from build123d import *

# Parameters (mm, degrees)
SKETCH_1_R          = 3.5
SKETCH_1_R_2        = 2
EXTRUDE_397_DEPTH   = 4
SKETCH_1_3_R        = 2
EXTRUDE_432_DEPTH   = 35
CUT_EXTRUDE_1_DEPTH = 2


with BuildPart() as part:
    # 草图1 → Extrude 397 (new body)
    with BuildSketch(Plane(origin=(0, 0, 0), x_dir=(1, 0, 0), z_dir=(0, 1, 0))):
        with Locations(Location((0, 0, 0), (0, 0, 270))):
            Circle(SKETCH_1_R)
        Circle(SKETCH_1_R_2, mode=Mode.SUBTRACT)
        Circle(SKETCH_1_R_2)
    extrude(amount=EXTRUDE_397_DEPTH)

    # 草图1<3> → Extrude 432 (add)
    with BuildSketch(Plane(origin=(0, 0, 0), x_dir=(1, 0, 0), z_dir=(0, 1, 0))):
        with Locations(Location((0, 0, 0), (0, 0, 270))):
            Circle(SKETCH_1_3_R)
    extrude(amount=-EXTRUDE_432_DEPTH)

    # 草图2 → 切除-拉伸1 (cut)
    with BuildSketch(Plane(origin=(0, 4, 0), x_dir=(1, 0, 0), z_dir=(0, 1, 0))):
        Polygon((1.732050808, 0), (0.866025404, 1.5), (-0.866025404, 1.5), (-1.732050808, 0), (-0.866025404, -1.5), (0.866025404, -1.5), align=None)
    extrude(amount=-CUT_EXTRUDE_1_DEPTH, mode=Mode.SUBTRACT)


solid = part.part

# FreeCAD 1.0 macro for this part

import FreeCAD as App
import Part
import Sketcher
Q = App.Units.Quantity

doc = App.newDocument("Part")
body = doc.addObject("PartDesign::Body", "Body")

# Sketch on XZ plane
sketch1 = doc.addObject("Sketcher::SketchObject", "Sketch")
body.addObject(sketch1)
sketch1.AttachmentSupport = (doc.XZ_Plane, [""])
sketch1.MapMode = "FlatFace"
sketch1.addGeometry(Part.Circle(App.Vector(0, 0, 0), App.Vector(0, 0, 1), 3.5), False)
sketch1.addConstraint([
    Sketcher.Constraint("Coincident", 0, 3, -1, 1),
    Sketcher.Constraint("Diameter", 0, 7.0),
])
pad1 = doc.addObject("PartDesign::Pad", "Pad")
body.addObject(pad1)
pad1.Profile = sketch1
pad1.Length = 4
pad1.Reversed = True

# Sketch on XZ plane
sketch2 = doc.addObject("Sketcher::SketchObject", "Sketch001")
body.addObject(sketch2)
sketch2.AttachmentSupport = (doc.XZ_Plane, [""])
sketch2.MapMode = "FlatFace"
sketch2.addGeometry(Part.Circle(App.Vector(0, 0, 0), App.Vector(0, 0, 1), 2), False)
sketch2.addConstraint([
    Sketcher.Constraint("Coincident", 0, 3, -1, 1),
    Sketcher.Constraint("Diameter", 0, 4.0),
])
pad2 = doc.addObject("PartDesign::Pad", "Pad001")
body.addObject(pad2)
pad2.Profile = sketch2
pad2.Length = 35

# Sketch on XZ plane
sketch3 = doc.addObject("Sketcher::SketchObject", "Sketch002")
body.addObject(sketch3)
sketch3.AttachmentSupport = (doc.XZ_Plane, [""])
sketch3.MapMode = "FlatFace"
sketch3.AttachmentOffset = App.Placement(App.Vector(0, 0, -4), App.Rotation())
sketch3.addGeometry([
    Part.LineSegment(App.Vector(1.732051, 0, 0), App.Vector(0.866025, -1.5, 0)),  # 0
    Part.LineSegment(App.Vector(0.866025, -1.5, 0), App.Vector(-0.866025, -1.5, 0)),  # 1
    Part.LineSegment(App.Vector(-0.866025, -1.5, 0), App.Vector(-1.732051, 0, 0)),  # 2
    Part.LineSegment(App.Vector(-1.732051, 0, 0), App.Vector(-0.866025, 1.5, 0)),  # 3
    Part.LineSegment(App.Vector(-0.866025, 1.5, 0), App.Vector(0.866025, 1.5, 0)),  # 4
    Part.LineSegment(App.Vector(0.866025, 1.5, 0), App.Vector(1.732051, 0, 0)),  # 5
], False)
sketch3.addConstraint([
    Sketcher.Constraint("Coincident", 0, 2, 1, 1),
    Sketcher.Constraint("Coincident", 1, 2, 2, 1),
    Sketcher.Constraint("Coincident", 2, 2, 3, 1),
    Sketcher.Constraint("Coincident", 3, 2, 4, 1),
    Sketcher.Constraint("Coincident", 4, 2, 5, 1),
    Sketcher.Constraint("Coincident", 5, 2, 0, 1),
    Sketcher.Constraint("Horizontal", 1),
    Sketcher.Constraint("Horizontal", 4),
    Sketcher.Constraint("Symmetric", 0, 2, 3, 2, -1, 1),
    Sketcher.Constraint("Symmetric", 2, 2, 5, 2, -1, 1),
    Sketcher.Constraint("PointOnObject", 2, 2, -1),
    Sketcher.Constraint("Parallel", 2, 5),
    Sketcher.Constraint("Vertical", 1, 2, 3, 2),
    Sketcher.Constraint("Angle", 0, Q("-120 deg")),
    Sketcher.Constraint("DistanceY", 1, 2, 3, 2, 3.0),
    Sketcher.Constraint("DistanceX", 1, 2, 1, 1, 1.732051),
])
pocket1 = doc.addObject("PartDesign::Pocket", "Pocket")
body.addObject(pocket1)
pocket1.Profile = sketch3
pocket1.Length = 2
pocket1.Reversed = True

doc.recompute()
